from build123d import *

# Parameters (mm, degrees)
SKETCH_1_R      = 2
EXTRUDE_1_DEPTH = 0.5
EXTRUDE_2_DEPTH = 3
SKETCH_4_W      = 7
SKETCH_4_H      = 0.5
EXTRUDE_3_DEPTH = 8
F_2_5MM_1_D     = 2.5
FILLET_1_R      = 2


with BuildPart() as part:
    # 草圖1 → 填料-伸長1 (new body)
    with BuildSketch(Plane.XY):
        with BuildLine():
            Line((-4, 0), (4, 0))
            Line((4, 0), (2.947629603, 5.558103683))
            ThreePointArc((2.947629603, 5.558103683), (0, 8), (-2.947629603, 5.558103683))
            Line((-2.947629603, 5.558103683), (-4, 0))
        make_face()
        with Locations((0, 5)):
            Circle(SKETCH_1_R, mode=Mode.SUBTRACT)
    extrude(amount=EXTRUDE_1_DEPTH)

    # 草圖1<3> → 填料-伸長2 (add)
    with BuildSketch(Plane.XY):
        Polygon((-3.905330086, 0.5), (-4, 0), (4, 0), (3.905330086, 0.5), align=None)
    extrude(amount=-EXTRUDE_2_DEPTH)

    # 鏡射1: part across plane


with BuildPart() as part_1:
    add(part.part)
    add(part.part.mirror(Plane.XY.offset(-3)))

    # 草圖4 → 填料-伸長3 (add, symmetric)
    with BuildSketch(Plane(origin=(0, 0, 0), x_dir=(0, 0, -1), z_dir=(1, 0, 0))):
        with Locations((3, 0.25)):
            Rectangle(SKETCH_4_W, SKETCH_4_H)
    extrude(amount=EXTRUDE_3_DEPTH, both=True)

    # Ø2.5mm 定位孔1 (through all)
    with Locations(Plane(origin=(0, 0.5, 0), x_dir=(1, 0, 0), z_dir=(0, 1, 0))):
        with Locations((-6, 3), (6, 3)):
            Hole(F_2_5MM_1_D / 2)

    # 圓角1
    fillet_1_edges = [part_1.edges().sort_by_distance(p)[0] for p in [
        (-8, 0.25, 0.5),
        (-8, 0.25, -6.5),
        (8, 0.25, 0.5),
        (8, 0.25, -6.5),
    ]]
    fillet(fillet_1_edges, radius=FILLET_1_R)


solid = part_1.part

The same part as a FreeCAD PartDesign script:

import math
import FreeCAD as App
import Part
import Sketcher
from FreeCAD import Vector


def edges_at(feature, points):
    """Names of the edges that pass closest to the given points."""
    edges = feature.Shape.Edges
    near = lambda p: min(range(len(edges)), key=lambda i: edges[i].distToShape(Part.Vertex(*p))[0])
    return sorted({f"Edge{near(p) + 1}" for p in points})

doc = App.newDocument("Part")
body = doc.addObject("PartDesign::Body", "Body")

# Sketch on XY plane
sketch1 = doc.addObject("Sketcher::SketchObject", "Sketch")
body.addObject(sketch1)
sketch1.AttachmentSupport = (doc.XY_Plane, [""])
sketch1.MapMode = "FlatFace"
sketch1.addGeometry([
    Part.LineSegment(Vector(-4, 0, 0), Vector(4, 0, 0)),  # 0
    Part.LineSegment(Vector(4, 0, 0), Vector(2.9, 5.6, 0)),  # 1
    Part.ArcOfCircle(Part.Circle(Vector(0, 5, 0), Vector(0, 0, 1), 3), math.radians(11), math.radians(169)),  # 2
    Part.LineSegment(Vector(-2.9, 5.6, 0), Vector(-4, 0, 0)),  # 3
    Part.Circle(Vector(0, 5, 0), Vector(0, 0, 1), 2),  # 4
], False)
sketch1.addConstraint([
    Sketcher.Constraint("Coincident", 0, 2, 1, 1),
    Sketcher.Constraint("Tangent", 1, 2, 2, 1),
    Sketcher.Constraint("Tangent", 2, 2, 3, 1),
    Sketcher.Constraint("Coincident", 3, 2, 0, 1),
    Sketcher.Constraint("Horizontal", 0),
    Sketcher.Constraint("Coincident", 4, 3, 2, 3),
    Sketcher.Constraint("Symmetric", 0, 2, 3, 2, -1, 1),
    Sketcher.Constraint("PointOnObject", 2, 3, -2),
    Sketcher.Constraint("Diameter", 4, 4.0),
    Sketcher.Constraint("Radius", 2, 3.0),
    Sketcher.Constraint("DistanceX", 0, 1, 0, 2, 8.0),
    Sketcher.Constraint("DistanceY", -1, 1, 2, 3, 5.0),
])
pad1 = doc.addObject("PartDesign::Pad", "Pad")
body.addObject(pad1)
pad1.Profile = sketch1
pad1.Length = 0.5

# Sketch on XY plane
sketch2 = doc.addObject("Sketcher::SketchObject", "Sketch001")
body.addObject(sketch2)
sketch2.AttachmentSupport = (doc.XY_Plane, [""])
sketch2.MapMode = "FlatFace"
sketch2.addGeometry([
    Part.LineSegment(Vector(-3.9, 0.5, 0), Vector(-4, 0, 0)),
    Part.LineSegment(Vector(-4, 0, 0), Vector(4, 0, 0)),
    Part.LineSegment(Vector(4, 0, 0), Vector(3.9, 0.5, 0)),
    Part.LineSegment(Vector(3.9, 0.5, 0), Vector(-3.9, 0.5, 0)),
], False)
sketch2.addConstraint([
    Sketcher.Constraint("Coincident", 0, 2, 1, 1),
    Sketcher.Constraint("Coincident", 1, 2, 2, 1),
    Sketcher.Constraint("Coincident", 2, 2, 3, 1),
    Sketcher.Constraint("Coincident", 3, 2, 0, 1),
    Sketcher.Constraint("Horizontal", 1),
    Sketcher.Constraint("Horizontal", 3),
    Sketcher.Constraint("Symmetric", 0, 2, 1, 2, -1, 1),
    Sketcher.Constraint("Equal", 0, 2),
    Sketcher.Constraint("DistanceX", 1, 1, 1, 2, 8.0),
    Sketcher.Constraint("DistanceY", -1, 1, 2, 2, 0.5),
    Sketcher.Constraint("DistanceX", 3, 2, 3, 1, 7.81066),
])
pad2 = doc.addObject("PartDesign::Pad", "Pad001")
body.addObject(pad2)
pad2.Profile = sketch2
pad2.Length = 3
pad2.Reversed = True
body2 = doc.addObject("PartDesign::Body", "Body001")
doc.recompute()

body2.BaseFeature = body
doc.recompute()

mirroring = doc.addObject("Part::Mirroring", "Mirroring")
mirroring.Source = body
mirroring.Base = Vector(0, 0, -3)
mirroring.Normal = Vector(0, 0, 1)
body3 = doc.addObject("PartDesign::Body", "Body002")
body3.BaseFeature = mirroring
boolean = doc.addObject("PartDesign::Boolean", "Boolean")
body2.addObject(boolean)
boolean.Type = "Fuse"
boolean.addObjects([body3])
doc.recompute()

# Sketch on YZ plane
sketch3 = doc.addObject("Sketcher::SketchObject", "Sketch002")
body2.addObject(sketch3)
sketch3.AttachmentSupport = (doc.getObject("YZ_Plane001"), [""])
sketch3.MapMode = "FlatFace"
sketch3.addGeometry([
    Part.LineSegment(Vector(0.5, 0.5, 0), Vector(0, 0.5, 0)),
    Part.LineSegment(Vector(0, 0.5, 0), Vector(0, -6.5, 0)),
    Part.LineSegment(Vector(0, -6.5, 0), Vector(0.5, -6.5, 0)),
    Part.LineSegment(Vector(0.5, -6.5, 0), Vector(0.5, 0.5, 0)),
], False)
sketch3.addConstraint([
    Sketcher.Constraint("Coincident", 0, 2, 1, 1),
    Sketcher.Constraint("Coincident", 1, 2, 2, 1),
    Sketcher.Constraint("Coincident", 2, 2, 3, 1),
    Sketcher.Constraint("Coincident", 3, 2, 0, 1),
    Sketcher.Constraint("Horizontal", 0),
    Sketcher.Constraint("Vertical", 1),
    Sketcher.Constraint("Horizontal", 2),
    Sketcher.Constraint("Vertical", 3),
    Sketcher.Constraint("PointOnObject", 0, 2, -2),
    Sketcher.Constraint("DistanceY", 1, 2, 1, 1, 7.0),
    Sketcher.Constraint("DistanceX", 0, 2, 0, 1, 0.5),
    Sketcher.Constraint("DistanceY", -1, 1, 0, 2, 0.5),
])
pad3 = doc.addObject("PartDesign::Pad", "Pad002")
body2.addObject(pad3)
pad3.Profile = sketch3
pad3.Length = 16
pad3.Midplane = True

# Sketch on XZ plane
sketch4 = doc.addObject("Sketcher::SketchObject", "Sketch003")
body2.addObject(sketch4)
sketch4.AttachmentSupport = (doc.getObject("XZ_Plane001"), [""])
sketch4.MapMode = "FlatFace"
sketch4.AttachmentOffset = App.Placement(Vector(0, 0, -0.5), App.Rotation())
sketch4.addGeometry([
    Part.Circle(Vector(-6, -3, 0), Vector(0, 0, 1), 1.2),
    Part.Circle(Vector(6, -3, 0), Vector(0, 0, 1), 1.2),
], False)
sketch4.addConstraint([
    Sketcher.Constraint("Equal", 0, 1),
    Sketcher.Constraint("Symmetric", 0, 3, 1, 3, -2),
    Sketcher.Constraint("Diameter", 0, 2.5),
    Sketcher.Constraint("DistanceX", 0, 3, -1, 1, 6.0),
    Sketcher.Constraint("DistanceY", 0, 3, -1, 1, 3.0),
])
doc.recompute()
hole = doc.addObject("PartDesign::Hole", "Hole")
body2.addObject(hole)
hole.Profile = sketch4
hole.ThreadType = "None"
hole.Diameter = 2.5
hole.DepthType = "ThroughAll"
hole.Reversed = True
doc.recompute()

fillet = doc.addObject("PartDesign::Fillet", "Fillet")
body2.addObject(fillet)
fillet.Base = (hole, edges_at(hole, [
    (-8, 0.25, 0.5),
    (-8, 0.25, -6.5),
    (8, 0.25, 0.5),
    (8, 0.25, -6.5),
]))
fillet.Radius = 2
mirroring.Visibility = False

doc.recompute()
